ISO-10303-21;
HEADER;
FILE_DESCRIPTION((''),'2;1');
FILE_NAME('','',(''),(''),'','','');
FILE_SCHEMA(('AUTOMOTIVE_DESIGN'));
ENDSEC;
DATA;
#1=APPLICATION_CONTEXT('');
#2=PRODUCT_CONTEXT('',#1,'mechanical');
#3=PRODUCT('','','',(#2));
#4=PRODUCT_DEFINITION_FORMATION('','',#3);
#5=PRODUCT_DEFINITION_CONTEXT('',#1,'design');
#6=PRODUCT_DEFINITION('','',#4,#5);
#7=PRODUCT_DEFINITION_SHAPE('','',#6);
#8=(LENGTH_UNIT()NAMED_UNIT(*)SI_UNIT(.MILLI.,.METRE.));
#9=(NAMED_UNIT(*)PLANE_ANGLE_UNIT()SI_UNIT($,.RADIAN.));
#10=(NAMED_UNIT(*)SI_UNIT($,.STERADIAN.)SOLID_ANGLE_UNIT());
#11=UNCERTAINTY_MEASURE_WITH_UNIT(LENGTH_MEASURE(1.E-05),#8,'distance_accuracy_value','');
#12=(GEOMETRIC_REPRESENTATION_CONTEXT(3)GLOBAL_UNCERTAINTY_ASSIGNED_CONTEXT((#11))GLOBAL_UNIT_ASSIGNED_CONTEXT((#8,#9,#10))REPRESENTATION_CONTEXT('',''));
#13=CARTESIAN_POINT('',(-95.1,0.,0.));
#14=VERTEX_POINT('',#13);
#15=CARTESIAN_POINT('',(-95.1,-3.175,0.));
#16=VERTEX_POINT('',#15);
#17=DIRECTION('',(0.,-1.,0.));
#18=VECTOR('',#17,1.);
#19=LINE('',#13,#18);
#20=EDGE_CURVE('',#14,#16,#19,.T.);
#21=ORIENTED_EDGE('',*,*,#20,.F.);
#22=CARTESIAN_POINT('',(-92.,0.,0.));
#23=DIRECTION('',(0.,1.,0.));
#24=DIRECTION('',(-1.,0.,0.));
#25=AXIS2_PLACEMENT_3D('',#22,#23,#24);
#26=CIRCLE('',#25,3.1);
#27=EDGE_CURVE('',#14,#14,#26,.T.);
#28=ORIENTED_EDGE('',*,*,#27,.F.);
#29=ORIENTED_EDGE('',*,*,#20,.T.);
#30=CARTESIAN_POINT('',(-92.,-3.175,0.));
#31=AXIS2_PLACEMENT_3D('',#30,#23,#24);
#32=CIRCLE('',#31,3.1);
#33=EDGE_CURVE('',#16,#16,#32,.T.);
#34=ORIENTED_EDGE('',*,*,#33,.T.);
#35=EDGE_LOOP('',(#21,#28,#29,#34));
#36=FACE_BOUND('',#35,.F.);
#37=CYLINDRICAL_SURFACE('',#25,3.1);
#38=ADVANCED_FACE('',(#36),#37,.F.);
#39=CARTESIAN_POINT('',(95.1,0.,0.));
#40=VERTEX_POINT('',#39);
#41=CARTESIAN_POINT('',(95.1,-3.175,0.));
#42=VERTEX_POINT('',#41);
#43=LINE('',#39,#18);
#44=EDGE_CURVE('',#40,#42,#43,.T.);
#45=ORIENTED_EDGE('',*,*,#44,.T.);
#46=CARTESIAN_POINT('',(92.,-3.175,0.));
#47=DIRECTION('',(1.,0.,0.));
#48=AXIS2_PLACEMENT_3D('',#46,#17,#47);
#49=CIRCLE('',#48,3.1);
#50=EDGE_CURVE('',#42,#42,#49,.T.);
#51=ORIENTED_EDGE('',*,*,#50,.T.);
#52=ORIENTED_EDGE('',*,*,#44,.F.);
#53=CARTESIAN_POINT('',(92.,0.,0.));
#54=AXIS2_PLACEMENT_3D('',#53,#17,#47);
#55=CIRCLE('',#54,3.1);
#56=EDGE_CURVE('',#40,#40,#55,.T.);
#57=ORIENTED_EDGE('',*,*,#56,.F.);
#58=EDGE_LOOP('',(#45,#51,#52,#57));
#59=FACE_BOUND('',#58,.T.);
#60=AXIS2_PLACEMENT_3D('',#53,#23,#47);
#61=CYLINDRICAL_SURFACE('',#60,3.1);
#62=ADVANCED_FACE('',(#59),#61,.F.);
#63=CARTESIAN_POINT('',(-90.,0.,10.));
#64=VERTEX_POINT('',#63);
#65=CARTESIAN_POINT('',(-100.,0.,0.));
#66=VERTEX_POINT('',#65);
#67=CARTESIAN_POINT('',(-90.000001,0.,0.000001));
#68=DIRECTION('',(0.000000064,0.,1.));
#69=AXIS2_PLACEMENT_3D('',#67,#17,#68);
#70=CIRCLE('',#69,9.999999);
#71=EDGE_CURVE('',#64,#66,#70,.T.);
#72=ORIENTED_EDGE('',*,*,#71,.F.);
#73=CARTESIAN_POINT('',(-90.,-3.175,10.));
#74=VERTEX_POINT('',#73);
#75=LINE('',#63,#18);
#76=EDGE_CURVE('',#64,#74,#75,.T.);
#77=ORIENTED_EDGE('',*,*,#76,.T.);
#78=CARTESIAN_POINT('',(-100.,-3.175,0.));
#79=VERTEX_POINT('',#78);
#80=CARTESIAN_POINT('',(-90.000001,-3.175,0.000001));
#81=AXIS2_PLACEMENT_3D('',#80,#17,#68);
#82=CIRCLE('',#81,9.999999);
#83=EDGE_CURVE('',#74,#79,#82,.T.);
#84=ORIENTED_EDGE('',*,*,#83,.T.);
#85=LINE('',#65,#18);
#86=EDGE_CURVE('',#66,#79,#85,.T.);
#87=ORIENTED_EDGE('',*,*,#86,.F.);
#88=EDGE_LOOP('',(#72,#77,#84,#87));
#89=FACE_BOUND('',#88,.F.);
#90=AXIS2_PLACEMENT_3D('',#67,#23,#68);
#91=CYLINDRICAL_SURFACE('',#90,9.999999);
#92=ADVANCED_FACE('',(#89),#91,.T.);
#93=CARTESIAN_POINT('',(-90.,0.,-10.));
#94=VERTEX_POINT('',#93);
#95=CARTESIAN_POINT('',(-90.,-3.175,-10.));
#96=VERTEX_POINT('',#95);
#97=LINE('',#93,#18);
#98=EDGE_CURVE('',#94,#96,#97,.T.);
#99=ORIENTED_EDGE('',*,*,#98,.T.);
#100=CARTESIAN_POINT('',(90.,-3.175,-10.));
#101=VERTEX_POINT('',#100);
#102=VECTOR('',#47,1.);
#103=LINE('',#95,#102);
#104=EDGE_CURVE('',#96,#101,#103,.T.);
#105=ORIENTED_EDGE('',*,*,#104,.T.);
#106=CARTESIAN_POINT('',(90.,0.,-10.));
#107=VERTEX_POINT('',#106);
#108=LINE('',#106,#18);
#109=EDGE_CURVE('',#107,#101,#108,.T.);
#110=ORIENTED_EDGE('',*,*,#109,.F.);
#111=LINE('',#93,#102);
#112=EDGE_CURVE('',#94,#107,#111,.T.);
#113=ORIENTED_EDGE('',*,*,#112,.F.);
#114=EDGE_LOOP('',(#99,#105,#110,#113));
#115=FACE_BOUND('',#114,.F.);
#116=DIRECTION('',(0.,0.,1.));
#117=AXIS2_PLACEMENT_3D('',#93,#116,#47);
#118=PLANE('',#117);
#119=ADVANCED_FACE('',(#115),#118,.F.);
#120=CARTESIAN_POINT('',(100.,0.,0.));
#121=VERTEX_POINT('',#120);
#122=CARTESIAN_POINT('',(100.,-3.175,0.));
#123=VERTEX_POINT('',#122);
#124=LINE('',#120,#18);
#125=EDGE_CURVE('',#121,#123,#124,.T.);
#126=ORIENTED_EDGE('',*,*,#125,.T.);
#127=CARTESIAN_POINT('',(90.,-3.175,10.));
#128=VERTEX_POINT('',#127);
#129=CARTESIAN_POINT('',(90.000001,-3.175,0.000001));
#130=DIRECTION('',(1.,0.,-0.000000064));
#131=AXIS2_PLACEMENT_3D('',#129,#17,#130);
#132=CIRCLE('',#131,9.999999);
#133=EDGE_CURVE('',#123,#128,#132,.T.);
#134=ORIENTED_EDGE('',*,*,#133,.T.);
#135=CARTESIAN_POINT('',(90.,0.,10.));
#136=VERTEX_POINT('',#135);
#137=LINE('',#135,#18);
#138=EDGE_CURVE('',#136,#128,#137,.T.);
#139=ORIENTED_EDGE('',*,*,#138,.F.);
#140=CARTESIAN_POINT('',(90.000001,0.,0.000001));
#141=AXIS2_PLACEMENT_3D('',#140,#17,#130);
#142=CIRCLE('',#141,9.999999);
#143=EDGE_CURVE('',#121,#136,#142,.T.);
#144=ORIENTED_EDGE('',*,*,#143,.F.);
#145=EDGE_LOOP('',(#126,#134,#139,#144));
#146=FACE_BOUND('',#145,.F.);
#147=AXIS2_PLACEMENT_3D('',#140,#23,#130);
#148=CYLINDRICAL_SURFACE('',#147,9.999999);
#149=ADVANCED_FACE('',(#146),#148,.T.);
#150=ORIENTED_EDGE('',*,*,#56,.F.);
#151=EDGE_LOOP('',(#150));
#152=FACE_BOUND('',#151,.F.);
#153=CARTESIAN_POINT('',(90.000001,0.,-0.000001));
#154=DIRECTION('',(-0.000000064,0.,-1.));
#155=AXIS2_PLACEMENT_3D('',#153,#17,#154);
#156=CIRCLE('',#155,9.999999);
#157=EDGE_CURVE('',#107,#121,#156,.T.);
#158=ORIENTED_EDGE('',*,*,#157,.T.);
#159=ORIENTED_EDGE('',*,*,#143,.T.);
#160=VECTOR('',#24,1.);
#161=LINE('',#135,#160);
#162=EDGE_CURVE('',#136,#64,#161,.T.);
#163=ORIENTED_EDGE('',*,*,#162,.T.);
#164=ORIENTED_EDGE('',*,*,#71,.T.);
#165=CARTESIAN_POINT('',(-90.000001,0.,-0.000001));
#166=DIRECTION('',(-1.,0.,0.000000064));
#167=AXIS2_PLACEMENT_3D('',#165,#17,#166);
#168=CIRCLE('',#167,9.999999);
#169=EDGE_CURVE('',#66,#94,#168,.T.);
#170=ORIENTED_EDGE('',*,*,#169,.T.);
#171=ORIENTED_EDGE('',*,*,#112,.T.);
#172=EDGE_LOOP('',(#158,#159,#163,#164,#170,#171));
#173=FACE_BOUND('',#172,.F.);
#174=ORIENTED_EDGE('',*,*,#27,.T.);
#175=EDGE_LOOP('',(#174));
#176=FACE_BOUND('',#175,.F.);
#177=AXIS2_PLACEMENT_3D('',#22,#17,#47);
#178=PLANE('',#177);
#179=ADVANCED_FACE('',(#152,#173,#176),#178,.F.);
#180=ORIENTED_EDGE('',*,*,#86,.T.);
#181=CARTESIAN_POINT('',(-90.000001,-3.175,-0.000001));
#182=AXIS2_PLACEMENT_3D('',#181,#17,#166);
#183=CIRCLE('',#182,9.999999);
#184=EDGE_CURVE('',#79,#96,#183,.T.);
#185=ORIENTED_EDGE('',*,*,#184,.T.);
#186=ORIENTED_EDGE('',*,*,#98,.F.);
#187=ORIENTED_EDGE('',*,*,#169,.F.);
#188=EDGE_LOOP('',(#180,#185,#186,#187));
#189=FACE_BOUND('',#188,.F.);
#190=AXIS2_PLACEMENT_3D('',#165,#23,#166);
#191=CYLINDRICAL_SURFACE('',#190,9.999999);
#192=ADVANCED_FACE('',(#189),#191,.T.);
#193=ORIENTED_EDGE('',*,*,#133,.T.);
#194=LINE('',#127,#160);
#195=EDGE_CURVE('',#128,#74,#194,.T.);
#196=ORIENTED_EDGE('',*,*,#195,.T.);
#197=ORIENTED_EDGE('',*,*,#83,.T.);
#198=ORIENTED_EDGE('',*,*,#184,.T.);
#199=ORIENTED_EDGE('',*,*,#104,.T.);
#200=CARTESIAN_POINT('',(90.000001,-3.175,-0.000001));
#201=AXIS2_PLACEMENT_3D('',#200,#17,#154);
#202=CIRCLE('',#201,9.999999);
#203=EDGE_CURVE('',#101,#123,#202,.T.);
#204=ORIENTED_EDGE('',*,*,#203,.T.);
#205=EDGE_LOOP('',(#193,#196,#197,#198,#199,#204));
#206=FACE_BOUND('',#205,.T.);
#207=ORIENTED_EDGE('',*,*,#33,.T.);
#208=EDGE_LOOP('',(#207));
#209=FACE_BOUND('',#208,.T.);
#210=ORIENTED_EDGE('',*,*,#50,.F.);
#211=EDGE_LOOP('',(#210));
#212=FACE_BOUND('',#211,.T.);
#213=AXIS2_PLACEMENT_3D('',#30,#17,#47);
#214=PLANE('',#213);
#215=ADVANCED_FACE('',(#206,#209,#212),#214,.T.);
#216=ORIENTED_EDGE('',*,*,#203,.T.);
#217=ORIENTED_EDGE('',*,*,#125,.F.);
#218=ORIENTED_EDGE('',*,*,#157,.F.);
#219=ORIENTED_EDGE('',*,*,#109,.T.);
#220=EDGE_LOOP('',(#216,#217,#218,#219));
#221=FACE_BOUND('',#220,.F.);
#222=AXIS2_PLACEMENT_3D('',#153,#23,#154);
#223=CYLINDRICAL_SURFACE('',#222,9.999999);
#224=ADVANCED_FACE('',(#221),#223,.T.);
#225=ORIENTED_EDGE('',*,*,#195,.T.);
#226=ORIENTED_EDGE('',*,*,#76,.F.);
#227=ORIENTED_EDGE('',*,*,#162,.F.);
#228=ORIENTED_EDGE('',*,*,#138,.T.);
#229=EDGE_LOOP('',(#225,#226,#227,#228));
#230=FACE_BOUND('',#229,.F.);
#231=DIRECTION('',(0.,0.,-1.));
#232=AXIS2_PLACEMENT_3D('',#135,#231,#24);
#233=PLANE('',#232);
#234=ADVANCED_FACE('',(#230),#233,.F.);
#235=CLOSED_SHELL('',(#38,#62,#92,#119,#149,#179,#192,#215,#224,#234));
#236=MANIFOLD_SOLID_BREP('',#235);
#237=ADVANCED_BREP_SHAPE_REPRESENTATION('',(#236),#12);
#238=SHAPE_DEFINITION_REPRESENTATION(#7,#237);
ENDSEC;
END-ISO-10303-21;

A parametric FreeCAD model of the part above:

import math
import FreeCAD as App
import Part
import Sketcher

doc = App.newDocument("Part")
body = doc.addObject("PartDesign::Body", "Body")

# Sketch on XZ plane
sketch1 = body.newObject("Sketcher::SketchObject", "Sketch")
sketch1.AttachmentSupport = (doc.getObject("XZ_Plane"), [""])
sketch1.MapMode = "FlatFace"
sketch1.addGeometry([
    Part.ArcOfCircle(Part.Circle(App.Vector(90.000001, 0.000001, 0), App.Vector(0, 0, 1), 9.999999), math.radians(-0.000004), math.radians(90.000004)),  # 0
    Part.LineSegment(App.Vector(90, 10, 0), App.Vector(-90, 10, 0)),  # 1
    Part.ArcOfCircle(Part.Circle(App.Vector(-90.000001, 0.000001, 0), App.Vector(0, 0, 1), 9.999999), math.radians(89.999996), math.radians(180.000004)),  # 2
    Part.ArcOfCircle(Part.Circle(App.Vector(-90.000001, -0.000001, 0), App.Vector(0, 0, 1), 9.999999), math.radians(179.999996), math.radians(270.000004)),  # 3
    Part.LineSegment(App.Vector(-90, -10, 0), App.Vector(90, -10, 0)),  # 4
    Part.ArcOfCircle(Part.Circle(App.Vector(90.000001, -0.000001, 0), App.Vector(0, 0, 1), 9.999999), math.radians(-90.000004), math.radians(0.000004)),  # 5
    Part.Circle(App.Vector(92, 0, 0), App.Vector(0, 0, 1), 3.1),  # 6
    Part.Circle(App.Vector(-92, 0, 0), App.Vector(0, 0, 1), 3.1),  # 7
], False)
sketch1.addConstraint([
    Sketcher.Constraint("Tangent", 0, 2, 1, 1),
    Sketcher.Constraint("Tangent", 1, 2, 2, 1),
    Sketcher.Constraint("Tangent", 2, 2, 3, 1),
    Sketcher.Constraint("Tangent", 3, 2, 4, 1),
    Sketcher.Constraint("Tangent", 4, 2, 5, 1),
    Sketcher.Constraint("Tangent", 5, 2, 0, 1),
    Sketcher.Constraint("Horizontal", 1),
    Sketcher.Constraint("Horizontal", 4),
    Sketcher.Constraint("Equal", 0, 2),
    Sketcher.Constraint("Equal", 2, 3),
    Sketcher.Constraint("Equal", 6, 7),
    Sketcher.Constraint("Symmetric", 0, 3, 2, 3, -1, 1),
    Sketcher.Constraint("Symmetric", 6, 3, 7, 3, -1, 1),
    Sketcher.Constraint("PointOnObject", 6, 3, -1),
    Sketcher.Constraint("PointOnObject", 2, 2, -1),
    Sketcher.Constraint("PointOnObject", 5, 2, -1),
    Sketcher.Constraint("Radius", 0, 9.999999),
    Sketcher.Constraint("Diameter", 6, 6.2),
    Sketcher.Constraint("DistanceX", 1, 2, 1, 1, 180.0),
    Sketcher.Constraint("DistanceX", -1, 1, 6, 3, 92.0),
])
pad1 = body.newObject("PartDesign::Pad", "Pad")
pad1.Profile = sketch1
pad1.Length = 3.175

doc.recompute()
